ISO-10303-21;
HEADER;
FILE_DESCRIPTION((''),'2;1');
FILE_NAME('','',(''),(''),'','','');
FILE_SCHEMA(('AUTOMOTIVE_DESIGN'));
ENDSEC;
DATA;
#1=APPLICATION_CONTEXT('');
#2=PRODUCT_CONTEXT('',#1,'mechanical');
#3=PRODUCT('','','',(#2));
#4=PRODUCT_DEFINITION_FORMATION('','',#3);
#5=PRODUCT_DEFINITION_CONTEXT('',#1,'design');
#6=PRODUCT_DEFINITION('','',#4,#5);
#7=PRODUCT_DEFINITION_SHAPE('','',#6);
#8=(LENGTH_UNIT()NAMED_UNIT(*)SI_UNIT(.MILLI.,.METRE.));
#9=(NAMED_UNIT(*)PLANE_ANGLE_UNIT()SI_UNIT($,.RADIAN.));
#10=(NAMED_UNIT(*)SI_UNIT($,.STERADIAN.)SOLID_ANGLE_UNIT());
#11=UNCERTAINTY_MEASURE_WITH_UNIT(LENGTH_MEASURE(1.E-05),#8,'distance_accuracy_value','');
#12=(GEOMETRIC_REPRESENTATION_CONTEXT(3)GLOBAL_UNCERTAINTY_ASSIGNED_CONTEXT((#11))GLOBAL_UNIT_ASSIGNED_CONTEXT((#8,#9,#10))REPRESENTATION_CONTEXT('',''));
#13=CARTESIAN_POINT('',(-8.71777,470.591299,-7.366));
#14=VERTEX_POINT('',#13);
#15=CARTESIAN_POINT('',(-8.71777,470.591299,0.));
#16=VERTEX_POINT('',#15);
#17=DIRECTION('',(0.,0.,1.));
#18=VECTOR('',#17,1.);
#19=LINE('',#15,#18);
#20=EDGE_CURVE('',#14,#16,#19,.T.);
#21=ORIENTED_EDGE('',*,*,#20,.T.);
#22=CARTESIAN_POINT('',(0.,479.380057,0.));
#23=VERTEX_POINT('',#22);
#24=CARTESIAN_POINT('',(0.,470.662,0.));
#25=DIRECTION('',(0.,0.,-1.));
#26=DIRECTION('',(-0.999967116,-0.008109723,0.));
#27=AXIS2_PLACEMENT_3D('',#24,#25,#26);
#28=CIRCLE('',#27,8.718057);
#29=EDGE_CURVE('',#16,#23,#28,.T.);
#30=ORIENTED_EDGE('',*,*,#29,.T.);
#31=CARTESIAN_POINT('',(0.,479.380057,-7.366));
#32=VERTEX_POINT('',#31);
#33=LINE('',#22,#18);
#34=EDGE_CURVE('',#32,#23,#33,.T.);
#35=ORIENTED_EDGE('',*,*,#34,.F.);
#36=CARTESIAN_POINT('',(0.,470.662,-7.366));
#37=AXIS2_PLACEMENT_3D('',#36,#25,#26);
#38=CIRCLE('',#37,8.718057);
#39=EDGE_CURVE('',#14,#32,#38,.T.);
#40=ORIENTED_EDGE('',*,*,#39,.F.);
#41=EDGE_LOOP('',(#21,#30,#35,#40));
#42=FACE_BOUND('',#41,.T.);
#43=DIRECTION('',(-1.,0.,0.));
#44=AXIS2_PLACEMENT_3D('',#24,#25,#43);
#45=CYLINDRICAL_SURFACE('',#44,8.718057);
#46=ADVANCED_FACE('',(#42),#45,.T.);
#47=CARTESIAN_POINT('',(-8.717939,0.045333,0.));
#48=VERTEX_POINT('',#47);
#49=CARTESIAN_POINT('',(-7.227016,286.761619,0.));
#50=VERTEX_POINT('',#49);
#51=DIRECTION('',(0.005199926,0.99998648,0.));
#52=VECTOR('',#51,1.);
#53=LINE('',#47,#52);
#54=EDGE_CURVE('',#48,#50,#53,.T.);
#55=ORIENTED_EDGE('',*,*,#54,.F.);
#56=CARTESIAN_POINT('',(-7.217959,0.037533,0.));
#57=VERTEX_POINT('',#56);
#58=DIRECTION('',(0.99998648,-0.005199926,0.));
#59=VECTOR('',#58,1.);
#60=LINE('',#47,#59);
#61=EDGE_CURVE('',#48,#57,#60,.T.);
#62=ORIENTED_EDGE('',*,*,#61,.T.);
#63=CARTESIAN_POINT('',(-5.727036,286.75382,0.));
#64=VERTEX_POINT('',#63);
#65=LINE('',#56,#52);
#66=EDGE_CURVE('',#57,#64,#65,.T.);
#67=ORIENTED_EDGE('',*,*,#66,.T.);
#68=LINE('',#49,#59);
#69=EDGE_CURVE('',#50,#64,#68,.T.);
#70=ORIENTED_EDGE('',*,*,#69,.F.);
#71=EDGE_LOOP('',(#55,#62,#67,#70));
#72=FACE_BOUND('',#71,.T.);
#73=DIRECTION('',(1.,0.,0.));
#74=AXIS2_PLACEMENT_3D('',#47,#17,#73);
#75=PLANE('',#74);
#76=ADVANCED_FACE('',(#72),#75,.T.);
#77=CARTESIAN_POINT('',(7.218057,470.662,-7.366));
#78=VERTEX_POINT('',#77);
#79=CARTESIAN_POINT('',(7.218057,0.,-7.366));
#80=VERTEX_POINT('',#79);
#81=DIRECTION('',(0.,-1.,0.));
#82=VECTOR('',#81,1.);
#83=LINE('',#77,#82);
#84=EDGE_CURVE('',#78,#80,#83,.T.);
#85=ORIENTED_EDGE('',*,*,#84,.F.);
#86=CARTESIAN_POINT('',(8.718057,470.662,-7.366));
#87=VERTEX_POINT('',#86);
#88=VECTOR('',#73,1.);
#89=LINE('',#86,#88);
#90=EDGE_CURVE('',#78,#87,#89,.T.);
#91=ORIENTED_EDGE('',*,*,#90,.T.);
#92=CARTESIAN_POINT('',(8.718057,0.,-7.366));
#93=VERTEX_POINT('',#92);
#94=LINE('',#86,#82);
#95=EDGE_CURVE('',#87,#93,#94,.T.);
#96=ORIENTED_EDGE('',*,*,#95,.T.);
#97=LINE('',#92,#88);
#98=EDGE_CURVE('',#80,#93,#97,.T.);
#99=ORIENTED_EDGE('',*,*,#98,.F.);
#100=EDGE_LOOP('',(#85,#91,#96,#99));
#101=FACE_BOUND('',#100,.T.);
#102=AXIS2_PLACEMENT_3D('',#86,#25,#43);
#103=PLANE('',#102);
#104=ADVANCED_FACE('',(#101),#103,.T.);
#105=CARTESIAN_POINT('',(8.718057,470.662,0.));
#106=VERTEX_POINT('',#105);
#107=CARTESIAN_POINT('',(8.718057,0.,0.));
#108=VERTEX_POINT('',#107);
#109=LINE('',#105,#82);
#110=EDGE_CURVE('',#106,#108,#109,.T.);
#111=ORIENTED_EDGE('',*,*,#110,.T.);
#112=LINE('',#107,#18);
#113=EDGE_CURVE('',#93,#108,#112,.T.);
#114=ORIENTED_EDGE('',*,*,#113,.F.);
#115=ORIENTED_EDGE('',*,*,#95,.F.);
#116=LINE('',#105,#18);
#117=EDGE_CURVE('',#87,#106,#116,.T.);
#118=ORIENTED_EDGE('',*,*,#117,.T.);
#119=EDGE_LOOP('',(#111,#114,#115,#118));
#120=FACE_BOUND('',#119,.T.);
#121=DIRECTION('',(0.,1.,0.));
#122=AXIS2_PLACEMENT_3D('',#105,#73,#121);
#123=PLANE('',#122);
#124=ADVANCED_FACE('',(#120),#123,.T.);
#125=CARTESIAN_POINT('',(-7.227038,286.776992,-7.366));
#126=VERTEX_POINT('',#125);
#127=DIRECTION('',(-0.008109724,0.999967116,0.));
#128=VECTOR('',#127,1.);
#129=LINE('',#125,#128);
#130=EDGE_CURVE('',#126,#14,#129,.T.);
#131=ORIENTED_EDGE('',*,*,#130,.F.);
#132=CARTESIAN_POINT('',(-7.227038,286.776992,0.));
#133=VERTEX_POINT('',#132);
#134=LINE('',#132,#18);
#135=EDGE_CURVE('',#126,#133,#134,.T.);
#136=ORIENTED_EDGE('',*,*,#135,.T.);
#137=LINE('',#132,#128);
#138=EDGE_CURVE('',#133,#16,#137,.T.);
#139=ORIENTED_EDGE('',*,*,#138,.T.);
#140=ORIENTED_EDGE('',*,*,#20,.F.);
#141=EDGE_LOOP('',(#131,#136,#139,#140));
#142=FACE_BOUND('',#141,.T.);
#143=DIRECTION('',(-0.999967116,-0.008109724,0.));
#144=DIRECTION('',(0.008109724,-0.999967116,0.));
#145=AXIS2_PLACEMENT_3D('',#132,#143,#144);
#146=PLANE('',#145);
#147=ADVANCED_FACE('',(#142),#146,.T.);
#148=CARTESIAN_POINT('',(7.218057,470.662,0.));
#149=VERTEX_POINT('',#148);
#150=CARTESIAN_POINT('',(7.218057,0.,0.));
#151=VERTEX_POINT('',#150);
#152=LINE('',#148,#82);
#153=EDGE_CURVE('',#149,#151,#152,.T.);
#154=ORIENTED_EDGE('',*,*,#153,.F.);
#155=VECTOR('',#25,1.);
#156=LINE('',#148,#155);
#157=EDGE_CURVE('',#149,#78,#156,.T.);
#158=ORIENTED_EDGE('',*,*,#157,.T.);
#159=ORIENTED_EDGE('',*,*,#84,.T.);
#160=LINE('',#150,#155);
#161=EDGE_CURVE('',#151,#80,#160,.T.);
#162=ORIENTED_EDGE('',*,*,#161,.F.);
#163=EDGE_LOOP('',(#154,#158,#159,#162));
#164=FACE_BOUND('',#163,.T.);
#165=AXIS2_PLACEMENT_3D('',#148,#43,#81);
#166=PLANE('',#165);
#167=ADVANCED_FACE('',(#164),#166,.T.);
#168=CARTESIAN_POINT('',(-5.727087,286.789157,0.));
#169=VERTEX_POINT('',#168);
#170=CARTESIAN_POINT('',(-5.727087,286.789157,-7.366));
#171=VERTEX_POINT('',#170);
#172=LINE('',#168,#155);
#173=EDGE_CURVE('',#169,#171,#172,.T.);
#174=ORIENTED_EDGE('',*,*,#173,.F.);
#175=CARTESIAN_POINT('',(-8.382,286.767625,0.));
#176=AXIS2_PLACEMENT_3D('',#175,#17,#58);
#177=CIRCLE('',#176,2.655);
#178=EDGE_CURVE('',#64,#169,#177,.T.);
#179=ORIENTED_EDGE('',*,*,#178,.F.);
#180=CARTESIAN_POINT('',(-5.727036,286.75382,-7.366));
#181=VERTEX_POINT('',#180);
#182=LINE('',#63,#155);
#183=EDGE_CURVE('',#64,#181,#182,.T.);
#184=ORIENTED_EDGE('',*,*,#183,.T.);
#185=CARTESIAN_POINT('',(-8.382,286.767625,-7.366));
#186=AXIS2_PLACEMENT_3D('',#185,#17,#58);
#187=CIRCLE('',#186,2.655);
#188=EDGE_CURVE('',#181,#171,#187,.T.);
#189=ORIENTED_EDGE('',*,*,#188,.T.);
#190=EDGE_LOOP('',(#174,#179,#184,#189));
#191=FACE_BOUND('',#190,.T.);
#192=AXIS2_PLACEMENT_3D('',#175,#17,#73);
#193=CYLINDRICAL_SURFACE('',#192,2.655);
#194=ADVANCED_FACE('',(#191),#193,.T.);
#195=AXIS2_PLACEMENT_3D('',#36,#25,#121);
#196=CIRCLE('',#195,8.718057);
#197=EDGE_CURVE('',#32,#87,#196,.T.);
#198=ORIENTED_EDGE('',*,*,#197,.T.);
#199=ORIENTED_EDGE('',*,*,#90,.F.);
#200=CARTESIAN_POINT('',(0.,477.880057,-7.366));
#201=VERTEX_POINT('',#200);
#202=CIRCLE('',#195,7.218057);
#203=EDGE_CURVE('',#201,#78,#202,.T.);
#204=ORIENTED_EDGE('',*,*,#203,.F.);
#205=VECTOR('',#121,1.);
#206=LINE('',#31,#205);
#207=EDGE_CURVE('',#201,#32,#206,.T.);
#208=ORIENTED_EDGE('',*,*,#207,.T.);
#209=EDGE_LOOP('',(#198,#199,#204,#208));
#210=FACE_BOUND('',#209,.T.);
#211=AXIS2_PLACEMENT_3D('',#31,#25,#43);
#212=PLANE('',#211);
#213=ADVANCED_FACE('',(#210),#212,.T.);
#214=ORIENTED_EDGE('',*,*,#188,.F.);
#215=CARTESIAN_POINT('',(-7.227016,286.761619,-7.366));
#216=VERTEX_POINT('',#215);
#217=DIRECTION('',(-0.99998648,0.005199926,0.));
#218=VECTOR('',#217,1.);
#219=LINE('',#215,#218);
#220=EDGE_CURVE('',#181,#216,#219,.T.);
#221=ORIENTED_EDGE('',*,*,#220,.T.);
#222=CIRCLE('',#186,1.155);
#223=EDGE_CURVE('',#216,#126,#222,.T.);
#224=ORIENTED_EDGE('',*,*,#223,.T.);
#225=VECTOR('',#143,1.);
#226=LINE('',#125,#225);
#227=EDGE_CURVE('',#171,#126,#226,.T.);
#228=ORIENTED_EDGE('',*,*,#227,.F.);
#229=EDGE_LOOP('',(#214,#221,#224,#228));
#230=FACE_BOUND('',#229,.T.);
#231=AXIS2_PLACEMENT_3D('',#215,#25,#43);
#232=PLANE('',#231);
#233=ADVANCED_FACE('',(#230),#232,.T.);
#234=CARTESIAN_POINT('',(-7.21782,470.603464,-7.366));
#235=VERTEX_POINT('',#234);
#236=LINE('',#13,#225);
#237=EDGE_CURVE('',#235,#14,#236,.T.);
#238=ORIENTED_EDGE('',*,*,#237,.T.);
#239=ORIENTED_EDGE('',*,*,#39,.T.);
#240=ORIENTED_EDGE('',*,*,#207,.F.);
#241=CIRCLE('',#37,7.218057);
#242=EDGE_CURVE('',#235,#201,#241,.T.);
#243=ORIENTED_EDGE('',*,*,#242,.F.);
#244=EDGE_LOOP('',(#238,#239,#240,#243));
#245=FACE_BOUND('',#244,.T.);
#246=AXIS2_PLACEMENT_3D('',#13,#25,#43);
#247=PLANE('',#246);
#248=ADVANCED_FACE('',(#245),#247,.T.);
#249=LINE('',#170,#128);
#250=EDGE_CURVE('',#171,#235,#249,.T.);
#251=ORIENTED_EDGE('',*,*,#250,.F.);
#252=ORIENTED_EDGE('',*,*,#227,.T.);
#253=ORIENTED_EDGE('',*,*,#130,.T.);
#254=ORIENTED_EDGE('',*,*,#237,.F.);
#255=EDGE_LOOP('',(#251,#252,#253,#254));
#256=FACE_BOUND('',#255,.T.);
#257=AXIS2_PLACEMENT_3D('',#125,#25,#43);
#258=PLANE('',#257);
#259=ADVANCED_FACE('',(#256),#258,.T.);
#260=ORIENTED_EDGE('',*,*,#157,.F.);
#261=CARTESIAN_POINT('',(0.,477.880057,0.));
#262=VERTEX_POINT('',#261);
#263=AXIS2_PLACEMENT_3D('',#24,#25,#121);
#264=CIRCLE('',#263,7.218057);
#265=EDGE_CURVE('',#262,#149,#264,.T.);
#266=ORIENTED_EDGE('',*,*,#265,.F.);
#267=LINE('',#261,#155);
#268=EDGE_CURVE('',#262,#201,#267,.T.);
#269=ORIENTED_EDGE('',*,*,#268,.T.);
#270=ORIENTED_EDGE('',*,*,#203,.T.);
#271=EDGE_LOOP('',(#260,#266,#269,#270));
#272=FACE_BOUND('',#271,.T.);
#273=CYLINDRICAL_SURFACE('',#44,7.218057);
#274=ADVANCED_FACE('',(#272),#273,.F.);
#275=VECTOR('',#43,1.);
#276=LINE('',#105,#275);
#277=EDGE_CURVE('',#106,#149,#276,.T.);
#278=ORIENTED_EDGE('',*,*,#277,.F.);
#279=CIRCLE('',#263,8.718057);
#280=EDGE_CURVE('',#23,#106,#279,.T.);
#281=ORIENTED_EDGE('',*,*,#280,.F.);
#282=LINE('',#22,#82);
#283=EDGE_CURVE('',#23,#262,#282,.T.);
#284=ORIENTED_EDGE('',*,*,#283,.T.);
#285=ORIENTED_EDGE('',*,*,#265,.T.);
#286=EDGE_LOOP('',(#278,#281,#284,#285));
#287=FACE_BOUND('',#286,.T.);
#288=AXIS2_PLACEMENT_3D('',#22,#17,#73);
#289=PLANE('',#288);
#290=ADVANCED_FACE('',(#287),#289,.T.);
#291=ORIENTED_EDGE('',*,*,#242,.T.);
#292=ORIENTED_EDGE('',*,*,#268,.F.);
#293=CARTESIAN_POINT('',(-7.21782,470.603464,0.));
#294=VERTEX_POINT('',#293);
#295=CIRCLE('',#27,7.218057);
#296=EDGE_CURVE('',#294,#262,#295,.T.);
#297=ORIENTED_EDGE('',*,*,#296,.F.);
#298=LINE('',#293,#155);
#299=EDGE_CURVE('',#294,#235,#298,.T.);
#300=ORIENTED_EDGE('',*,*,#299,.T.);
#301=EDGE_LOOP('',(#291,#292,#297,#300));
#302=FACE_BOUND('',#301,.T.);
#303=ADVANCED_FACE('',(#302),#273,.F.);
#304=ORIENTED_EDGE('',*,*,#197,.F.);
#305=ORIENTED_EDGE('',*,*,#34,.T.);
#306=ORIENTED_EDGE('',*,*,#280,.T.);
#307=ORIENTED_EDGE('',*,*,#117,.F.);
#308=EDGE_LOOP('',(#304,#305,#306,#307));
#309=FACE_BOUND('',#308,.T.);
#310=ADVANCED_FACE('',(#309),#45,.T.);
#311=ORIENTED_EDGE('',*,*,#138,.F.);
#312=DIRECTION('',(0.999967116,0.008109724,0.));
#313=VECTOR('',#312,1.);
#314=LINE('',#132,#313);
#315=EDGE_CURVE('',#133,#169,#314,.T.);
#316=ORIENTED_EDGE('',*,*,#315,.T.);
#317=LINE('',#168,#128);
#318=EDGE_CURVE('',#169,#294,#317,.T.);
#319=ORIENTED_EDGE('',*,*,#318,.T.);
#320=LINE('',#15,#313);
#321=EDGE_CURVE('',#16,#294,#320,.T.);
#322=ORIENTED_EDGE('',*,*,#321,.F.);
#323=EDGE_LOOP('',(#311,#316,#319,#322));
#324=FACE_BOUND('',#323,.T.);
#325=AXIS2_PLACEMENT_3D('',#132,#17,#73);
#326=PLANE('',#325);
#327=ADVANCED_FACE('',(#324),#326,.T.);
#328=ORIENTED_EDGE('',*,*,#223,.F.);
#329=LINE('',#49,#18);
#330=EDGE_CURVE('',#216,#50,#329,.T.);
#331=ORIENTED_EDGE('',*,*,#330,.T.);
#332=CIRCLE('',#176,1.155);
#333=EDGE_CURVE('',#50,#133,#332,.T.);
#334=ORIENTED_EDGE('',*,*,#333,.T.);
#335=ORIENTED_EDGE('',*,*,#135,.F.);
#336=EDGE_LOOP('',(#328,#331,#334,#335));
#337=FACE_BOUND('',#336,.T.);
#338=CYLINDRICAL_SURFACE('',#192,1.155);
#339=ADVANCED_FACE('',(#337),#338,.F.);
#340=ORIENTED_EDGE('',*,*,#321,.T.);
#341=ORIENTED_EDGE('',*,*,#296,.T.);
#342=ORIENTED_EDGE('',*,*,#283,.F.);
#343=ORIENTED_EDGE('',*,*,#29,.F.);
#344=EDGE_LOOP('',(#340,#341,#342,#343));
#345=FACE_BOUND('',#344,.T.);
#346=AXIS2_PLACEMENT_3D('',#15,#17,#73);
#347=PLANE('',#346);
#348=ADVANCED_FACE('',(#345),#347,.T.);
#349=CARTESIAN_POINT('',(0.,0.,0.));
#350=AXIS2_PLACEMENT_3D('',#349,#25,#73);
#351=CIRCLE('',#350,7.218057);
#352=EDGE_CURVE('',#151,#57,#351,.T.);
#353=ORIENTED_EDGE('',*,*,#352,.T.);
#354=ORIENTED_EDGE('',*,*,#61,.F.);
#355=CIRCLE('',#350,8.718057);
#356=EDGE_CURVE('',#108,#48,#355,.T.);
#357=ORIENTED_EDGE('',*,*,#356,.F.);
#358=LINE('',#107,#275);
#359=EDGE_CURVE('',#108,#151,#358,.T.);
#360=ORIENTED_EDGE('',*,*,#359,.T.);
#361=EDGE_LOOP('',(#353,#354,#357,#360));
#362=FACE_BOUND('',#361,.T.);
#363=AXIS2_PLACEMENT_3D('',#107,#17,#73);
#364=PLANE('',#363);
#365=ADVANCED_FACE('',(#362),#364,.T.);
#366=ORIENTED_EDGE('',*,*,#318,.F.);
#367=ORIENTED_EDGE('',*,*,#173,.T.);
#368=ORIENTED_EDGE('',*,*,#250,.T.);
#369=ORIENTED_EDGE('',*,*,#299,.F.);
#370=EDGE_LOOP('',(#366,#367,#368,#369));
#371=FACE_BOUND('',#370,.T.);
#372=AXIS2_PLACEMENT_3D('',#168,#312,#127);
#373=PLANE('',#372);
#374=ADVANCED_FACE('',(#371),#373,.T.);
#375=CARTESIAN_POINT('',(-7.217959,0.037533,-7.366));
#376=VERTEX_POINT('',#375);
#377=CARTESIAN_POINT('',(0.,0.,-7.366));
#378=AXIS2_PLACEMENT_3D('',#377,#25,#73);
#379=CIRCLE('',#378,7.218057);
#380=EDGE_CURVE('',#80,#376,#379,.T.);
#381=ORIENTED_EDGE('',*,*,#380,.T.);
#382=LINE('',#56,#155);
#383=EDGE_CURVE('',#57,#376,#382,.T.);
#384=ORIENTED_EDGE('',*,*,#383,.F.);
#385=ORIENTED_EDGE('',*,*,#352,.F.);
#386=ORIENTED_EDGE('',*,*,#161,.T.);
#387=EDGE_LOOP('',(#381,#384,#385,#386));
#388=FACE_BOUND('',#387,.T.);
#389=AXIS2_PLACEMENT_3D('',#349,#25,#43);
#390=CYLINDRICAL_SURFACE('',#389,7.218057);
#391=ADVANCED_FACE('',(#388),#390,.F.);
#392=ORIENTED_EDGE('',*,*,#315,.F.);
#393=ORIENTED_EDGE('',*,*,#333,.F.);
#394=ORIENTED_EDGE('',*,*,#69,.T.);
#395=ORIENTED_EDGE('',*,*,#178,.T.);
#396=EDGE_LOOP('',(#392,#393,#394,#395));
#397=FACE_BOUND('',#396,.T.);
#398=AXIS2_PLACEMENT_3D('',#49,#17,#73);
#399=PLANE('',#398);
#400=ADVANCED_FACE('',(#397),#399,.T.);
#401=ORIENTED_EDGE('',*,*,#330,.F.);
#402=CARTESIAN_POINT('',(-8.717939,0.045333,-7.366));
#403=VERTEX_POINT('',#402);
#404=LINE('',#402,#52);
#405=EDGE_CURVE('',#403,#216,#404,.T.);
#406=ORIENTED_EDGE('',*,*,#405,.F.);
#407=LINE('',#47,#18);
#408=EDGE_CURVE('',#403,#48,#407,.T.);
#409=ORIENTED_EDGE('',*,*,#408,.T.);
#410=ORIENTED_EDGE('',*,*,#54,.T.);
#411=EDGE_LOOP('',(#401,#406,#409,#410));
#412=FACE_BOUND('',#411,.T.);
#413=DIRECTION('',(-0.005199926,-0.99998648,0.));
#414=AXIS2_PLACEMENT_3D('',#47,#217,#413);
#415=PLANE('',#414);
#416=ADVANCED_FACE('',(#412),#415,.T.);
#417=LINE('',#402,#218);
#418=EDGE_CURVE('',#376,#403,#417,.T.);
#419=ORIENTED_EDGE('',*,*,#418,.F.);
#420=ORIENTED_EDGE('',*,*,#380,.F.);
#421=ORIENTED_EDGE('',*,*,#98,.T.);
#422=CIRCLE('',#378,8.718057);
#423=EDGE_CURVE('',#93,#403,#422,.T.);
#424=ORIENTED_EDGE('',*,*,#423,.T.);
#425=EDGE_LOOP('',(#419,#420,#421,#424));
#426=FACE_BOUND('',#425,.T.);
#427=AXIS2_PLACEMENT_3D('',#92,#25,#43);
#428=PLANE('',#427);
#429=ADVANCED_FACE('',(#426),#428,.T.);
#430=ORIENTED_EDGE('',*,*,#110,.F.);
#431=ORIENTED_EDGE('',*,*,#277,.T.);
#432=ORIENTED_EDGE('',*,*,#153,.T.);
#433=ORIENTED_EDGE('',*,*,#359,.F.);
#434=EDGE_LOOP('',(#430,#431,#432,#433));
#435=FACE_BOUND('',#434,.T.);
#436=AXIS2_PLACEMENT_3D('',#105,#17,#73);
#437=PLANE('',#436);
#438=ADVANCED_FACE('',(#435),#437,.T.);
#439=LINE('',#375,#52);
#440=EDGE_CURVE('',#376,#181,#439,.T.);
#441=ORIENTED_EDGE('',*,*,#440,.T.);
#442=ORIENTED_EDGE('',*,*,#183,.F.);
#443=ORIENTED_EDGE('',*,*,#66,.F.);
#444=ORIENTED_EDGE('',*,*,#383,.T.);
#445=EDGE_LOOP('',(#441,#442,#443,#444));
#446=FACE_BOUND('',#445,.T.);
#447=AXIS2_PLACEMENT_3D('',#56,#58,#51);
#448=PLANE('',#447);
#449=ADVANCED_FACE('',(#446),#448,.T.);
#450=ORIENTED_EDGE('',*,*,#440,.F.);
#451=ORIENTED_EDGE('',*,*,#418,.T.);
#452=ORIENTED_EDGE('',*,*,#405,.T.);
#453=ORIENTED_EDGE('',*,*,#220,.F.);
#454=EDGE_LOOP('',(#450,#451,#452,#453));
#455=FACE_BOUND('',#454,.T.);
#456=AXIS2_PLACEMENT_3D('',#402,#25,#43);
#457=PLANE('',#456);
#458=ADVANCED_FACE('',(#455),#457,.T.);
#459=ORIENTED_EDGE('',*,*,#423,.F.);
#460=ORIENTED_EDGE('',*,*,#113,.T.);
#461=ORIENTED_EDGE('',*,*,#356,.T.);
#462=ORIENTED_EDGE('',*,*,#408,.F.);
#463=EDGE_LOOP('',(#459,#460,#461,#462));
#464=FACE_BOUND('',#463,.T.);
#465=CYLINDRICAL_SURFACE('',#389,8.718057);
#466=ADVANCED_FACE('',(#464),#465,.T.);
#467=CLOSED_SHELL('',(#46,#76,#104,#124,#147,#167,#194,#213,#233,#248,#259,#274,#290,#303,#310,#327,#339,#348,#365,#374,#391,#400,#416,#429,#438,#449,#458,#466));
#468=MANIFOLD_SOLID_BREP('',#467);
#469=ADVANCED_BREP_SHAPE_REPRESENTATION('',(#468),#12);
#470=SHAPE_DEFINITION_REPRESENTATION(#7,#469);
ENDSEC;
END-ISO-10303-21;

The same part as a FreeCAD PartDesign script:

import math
import FreeCAD as App
import Part
import Sketcher
Q = App.Units.Quantity


def add_polygon(sketch, points):
    """Adds a closed chain of lines whose ends are joined by coincident constraints."""
    first, n = sketch.GeometryCount, len(points)
    for a, b in zip(points, points[1:] + points[:1]):
        sketch.addGeometry(Part.LineSegment(App.Vector(*a, 0), App.Vector(*b, 0)), False)
    for i in range(n):
        sketch.addConstraint(Sketcher.Constraint("Coincident", first + i, 2, first + (i + 1) % n, 1))

doc = App.newDocument("Part")
body = doc.addObject("PartDesign::Body", "Body")

sketch1 = doc.addObject("Sketcher::SketchObject", "Sketch")
body.addObject(sketch1)
sketch1.AttachmentSupport = (doc.YZ_Plane, [""])
sketch1.MapMode = "FlatFace"
add_polygon(sketch1, [(479.4, 0), (477.9, 0), (477.9, -7.4), (479.4, -7.4)])
sketch1.addConstraint(Sketcher.Constraint("Horizontal", 0))
sketch1.addConstraint(Sketcher.Constraint("Vertical", 1))
sketch1.addConstraint(Sketcher.Constraint("Horizontal", 2))
sketch1.addConstraint(Sketcher.Constraint("Vertical", 3))
sketch1.addConstraint(Sketcher.Constraint("PointOnObject", 0, 2, -1))
sketch1.addConstraint(Sketcher.Constraint("DistanceY", 1, 2, 1, 1, Q("0.29 in")))
sketch1.addConstraint(Sketcher.Constraint("DistanceX", 0, 2, 0, 1, Q("1.5 mm")))
sketch1.addConstraint(Sketcher.Constraint("DistanceX", -1, 1, 0, 2, Q("477.880057 mm")))

sketch2 = doc.addObject("Sketcher::SketchObject", "Sketch001")
body.addObject(sketch2)
sketch2.AttachmentSupport = (doc.XY_Plane, [""])
sketch2.MapMode = "FlatFace"
sketch2.addGeometry(Part.LineSegment(App.Vector(-7.218, 0.038, 0), App.Vector(-5.727, 286.754, 0)), False)
sketch2.addGeometry(Part.ArcOfCircle(Part.Circle(App.Vector(-8.382, 286.768, 0), App.Vector(0, 0, 1), 2.655), math.radians(-0.3), math.radians(0.46)), False)
sketch2.addGeometry(Part.LineSegment(App.Vector(-5.727, 286.789, 0), App.Vector(-7.218, 470.603, 0)), False)
sketch2.addGeometry(Part.ArcOfCircle(Part.Circle(App.Vector(0, 470.662, 0), App.Vector(0, 0, 1), 7.218), math.radians(0), math.radians(180)), False)
sketch2.addGeometry(Part.LineSegment(App.Vector(7.218, 470.662, 0), App.Vector(7.218, 0, 0)), False)
sketch2.addGeometry(Part.ArcOfCircle(Part.Circle(App.Vector(0, 0, 0), App.Vector(0, 0, 1), 7.218), math.radians(180), math.radians(360)), False)
sketch2.addConstraint(Sketcher.Constraint("Tangent", 0, 2, 1, 1))
sketch2.addConstraint(Sketcher.Constraint("Tangent", 1, 2, 2, 1))
sketch2.addConstraint(Sketcher.Constraint("Tangent", 2, 2, 3, 2))
sketch2.addConstraint(Sketcher.Constraint("Tangent", 3, 1, 4, 1))
sketch2.addConstraint(Sketcher.Constraint("Tangent", 4, 2, 5, 2))
sketch2.addConstraint(Sketcher.Constraint("Tangent", 5, 1, 0, 1))
sketch2.addConstraint(Sketcher.Constraint("Vertical", 4))
sketch2.addConstraint(Sketcher.Constraint("Coincident", 5, 3, -1, 1))
sketch2.addConstraint(Sketcher.Constraint("Equal", 3, 5))
sketch2.addConstraint(Sketcher.Constraint("DistanceY", 4, 2, 4, 1, Q("18.53 in")))
sketch2.addConstraint(Sketcher.Constraint("Radius", 1, Q("2.654991 mm")))
sketch2.addConstraint(Sketcher.Constraint("Radius", 3, Q("7.218057 mm")))
sketch2.addConstraint(Sketcher.Constraint("Distance", 2, Q("183.820352 mm")))
sketch2.addConstraint(Sketcher.Constraint("DistanceX", 1, 3, -1, 1, Q("8.381991 mm")))
doc.recompute()

additivepipe = doc.addObject("PartDesign::AdditivePipe", "AdditivePipe")
body.addObject(additivepipe)
additivepipe.Profile = sketch1
additivepipe.Spine = (sketch2, ["Edge1", "Edge2", "Edge3", "Edge4", "Edge5", "Edge6"])

doc.recompute()
